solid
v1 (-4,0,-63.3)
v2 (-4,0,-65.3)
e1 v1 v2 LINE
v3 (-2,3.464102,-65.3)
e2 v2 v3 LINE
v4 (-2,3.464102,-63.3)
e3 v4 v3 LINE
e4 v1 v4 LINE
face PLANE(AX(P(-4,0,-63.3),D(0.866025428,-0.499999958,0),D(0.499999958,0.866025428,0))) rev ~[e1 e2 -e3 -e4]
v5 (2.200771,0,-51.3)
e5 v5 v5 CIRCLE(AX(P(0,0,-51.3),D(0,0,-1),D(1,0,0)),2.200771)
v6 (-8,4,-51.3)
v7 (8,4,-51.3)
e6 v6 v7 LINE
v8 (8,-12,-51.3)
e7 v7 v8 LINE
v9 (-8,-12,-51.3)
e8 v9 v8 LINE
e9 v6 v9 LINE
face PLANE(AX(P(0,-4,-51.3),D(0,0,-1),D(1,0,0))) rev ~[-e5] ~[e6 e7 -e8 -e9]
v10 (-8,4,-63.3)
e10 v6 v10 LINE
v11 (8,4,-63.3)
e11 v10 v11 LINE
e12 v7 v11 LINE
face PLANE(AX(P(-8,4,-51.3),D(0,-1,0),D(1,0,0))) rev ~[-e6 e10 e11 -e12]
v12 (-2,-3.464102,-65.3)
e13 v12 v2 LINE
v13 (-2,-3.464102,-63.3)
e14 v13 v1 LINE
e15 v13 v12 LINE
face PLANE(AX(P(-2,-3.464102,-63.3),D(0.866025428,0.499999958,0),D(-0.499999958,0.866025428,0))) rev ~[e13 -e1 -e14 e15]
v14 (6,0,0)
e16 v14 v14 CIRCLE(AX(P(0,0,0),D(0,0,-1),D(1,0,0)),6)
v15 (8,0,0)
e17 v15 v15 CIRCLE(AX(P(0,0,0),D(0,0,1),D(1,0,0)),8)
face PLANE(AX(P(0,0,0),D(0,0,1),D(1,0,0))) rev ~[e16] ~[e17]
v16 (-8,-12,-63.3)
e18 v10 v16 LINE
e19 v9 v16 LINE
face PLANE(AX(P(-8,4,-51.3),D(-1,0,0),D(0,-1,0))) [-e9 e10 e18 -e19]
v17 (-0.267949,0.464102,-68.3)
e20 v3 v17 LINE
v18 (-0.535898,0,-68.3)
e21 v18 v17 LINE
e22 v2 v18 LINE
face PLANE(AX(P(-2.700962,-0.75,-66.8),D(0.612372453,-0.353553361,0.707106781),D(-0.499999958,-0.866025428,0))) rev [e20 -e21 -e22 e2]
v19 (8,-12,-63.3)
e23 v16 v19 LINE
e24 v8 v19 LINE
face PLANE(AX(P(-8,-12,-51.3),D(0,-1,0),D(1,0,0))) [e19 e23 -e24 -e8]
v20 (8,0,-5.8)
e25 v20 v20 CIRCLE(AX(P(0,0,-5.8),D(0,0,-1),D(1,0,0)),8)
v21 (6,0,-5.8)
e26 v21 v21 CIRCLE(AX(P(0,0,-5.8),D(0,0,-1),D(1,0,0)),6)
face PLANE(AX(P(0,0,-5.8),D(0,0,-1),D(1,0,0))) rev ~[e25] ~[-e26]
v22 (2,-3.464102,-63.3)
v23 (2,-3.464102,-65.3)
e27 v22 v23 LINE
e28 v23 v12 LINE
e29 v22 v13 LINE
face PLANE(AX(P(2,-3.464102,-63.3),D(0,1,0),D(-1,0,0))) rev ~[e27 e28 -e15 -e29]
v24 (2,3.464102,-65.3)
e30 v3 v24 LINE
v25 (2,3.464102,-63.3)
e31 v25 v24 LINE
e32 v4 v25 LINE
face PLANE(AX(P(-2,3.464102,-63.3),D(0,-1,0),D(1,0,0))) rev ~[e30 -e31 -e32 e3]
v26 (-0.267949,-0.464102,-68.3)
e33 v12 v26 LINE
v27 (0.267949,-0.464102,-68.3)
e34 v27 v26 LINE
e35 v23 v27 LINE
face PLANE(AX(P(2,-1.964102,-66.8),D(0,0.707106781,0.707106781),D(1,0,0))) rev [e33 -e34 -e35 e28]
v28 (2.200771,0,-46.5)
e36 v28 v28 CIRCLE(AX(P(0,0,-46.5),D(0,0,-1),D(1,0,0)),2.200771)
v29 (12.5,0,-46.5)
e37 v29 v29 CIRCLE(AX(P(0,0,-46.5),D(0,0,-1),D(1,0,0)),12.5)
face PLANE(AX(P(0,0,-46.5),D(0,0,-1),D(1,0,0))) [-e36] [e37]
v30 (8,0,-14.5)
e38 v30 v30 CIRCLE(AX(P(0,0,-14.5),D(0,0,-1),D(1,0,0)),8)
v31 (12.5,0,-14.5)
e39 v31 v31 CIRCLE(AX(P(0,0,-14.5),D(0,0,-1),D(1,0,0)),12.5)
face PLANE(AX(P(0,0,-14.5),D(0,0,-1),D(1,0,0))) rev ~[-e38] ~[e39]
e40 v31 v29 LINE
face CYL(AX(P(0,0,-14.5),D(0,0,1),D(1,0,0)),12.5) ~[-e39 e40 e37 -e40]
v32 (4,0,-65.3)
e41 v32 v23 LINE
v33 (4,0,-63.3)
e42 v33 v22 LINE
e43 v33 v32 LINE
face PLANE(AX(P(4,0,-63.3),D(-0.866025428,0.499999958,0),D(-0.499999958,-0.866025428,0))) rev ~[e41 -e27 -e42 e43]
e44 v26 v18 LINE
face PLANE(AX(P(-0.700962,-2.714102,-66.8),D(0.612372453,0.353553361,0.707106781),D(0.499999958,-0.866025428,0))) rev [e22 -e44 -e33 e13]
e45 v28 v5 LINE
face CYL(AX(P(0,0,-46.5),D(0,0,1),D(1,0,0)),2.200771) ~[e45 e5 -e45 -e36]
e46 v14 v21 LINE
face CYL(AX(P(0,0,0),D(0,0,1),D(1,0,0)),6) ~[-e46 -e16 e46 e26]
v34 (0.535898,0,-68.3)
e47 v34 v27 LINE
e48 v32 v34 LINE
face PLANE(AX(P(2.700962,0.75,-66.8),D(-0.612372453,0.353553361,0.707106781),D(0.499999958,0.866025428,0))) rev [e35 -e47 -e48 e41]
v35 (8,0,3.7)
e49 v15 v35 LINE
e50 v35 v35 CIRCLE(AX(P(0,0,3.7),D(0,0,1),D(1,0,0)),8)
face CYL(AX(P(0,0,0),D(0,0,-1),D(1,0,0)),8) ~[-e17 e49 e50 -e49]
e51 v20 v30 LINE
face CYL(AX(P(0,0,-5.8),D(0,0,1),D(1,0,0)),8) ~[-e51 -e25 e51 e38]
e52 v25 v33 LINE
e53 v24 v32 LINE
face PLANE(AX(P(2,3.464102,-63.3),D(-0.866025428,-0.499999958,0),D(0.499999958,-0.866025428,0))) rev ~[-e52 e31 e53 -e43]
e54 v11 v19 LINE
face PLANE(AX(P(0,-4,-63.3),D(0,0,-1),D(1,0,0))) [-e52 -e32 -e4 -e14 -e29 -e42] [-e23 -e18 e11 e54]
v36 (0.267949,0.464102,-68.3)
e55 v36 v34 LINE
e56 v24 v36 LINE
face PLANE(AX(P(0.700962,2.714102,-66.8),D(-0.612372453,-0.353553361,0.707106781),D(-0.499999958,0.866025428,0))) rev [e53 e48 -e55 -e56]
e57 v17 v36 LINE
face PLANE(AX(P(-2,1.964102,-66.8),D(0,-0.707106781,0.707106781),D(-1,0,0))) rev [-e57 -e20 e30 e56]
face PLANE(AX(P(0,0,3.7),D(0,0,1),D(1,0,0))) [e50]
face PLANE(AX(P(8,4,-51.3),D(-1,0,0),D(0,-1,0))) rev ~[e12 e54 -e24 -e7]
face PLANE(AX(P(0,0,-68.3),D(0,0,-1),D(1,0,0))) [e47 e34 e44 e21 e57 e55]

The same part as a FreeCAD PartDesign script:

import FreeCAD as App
import Part
import Sketcher
from FreeCAD import Vector
Q = App.Units.Quantity


def edges_at(feature, points):
    """Names of the edges that pass closest to the given points."""
    edges = feature.Shape.Edges
    near = lambda p: min(range(len(edges)), key=lambda i: edges[i].distToShape(Part.Vertex(*p))[0])
    return sorted({f"Edge{near(p) + 1}" for p in points})


def add_polygon(sketch, points):
    """Adds a closed chain of lines whose ends are joined by coincident constraints."""
    first, n = sketch.GeometryCount, len(points)
    for a, b in zip(points, points[1:] + points[:1]):
        sketch.addGeometry(Part.LineSegment(App.Vector(*a, 0), App.Vector(*b, 0)), False)
    for i in range(n):
        sketch.addConstraint(Sketcher.Constraint("Coincident", first + i, 2, first + (i + 1) % n, 1))

doc = App.newDocument("Part")
body = doc.addObject("PartDesign::Body", "Body")

# Sketch on XY plane
sketch1 = doc.addObject("Sketcher::SketchObject", "Sketch")
body.addObject(sketch1)
sketch1.AttachmentSupport = (doc.XY_Plane, [""])
sketch1.MapMode = "FlatFace"
sketch1.addGeometry(Part.Circle(Vector(0, 0, 0), Vector(0, 0, 1), 8), False)
sketch1.addConstraint([
    Sketcher.Constraint("Coincident", 0, 3, -1, 1),
    Sketcher.Constraint("Diameter", 0, 16.0),
])
pad1 = doc.addObject("PartDesign::Pad", "Pad")
body.addObject(pad1)
pad1.Profile = sketch1
pad1.Length = 3.7

# Sketch on XY plane
sketch2 = doc.addObject("Sketcher::SketchObject", "Sketch001")
body.addObject(sketch2)
sketch2.AttachmentSupport = (doc.XY_Plane, [""])
sketch2.MapMode = "FlatFace"
sketch2.addGeometry(Part.Circle(Vector(0, 0, 0), Vector(0, 0, 1), 6), False)
sketch2.addConstraint([
    Sketcher.Constraint("Coincident", 0, 3, -1, 1),
    Sketcher.Constraint("Diameter", 0, 12.0),
])
pad2 = doc.addObject("PartDesign::Pad", "Pad001")
body.addObject(pad2)
pad2.Profile = sketch2
pad2.Length = 5.8
pad2.Reversed = True

# Sketch on XY plane
sketch3 = doc.addObject("Sketcher::SketchObject", "Sketch002")
body.addObject(sketch3)
sketch3.AttachmentSupport = (doc.XY_Plane, [""])
sketch3.MapMode = "FlatFace"
sketch3.AttachmentOffset = App.Placement(Vector(0, 0, -5.8), App.Rotation())
sketch3.addGeometry(Part.Circle(Vector(0, 0, 0), Vector(0, 0, 1), 8), False)
sketch3.addConstraint([
    Sketcher.Constraint("Coincident", 0, 3, -1, 1),
    Sketcher.Constraint("Diameter", 0, 16.0),
])
pad3 = doc.addObject("PartDesign::Pad", "Pad002")
body.addObject(pad3)
pad3.Profile = sketch3
pad3.Length = 8.7
pad3.Reversed = True

# Sketch on XY plane
sketch4 = doc.addObject("Sketcher::SketchObject", "Sketch003")
body.addObject(sketch4)
sketch4.AttachmentSupport = (doc.XY_Plane, [""])
sketch4.MapMode = "FlatFace"
sketch4.AttachmentOffset = App.Placement(Vector(0, 0, -14.5), App.Rotation())
sketch4.addGeometry(Part.Circle(Vector(0, 0, 0), Vector(0, 0, 1), 12), False)
sketch4.addConstraint([
    Sketcher.Constraint("Coincident", 0, 3, -1, 1),
    Sketcher.Constraint("Diameter", 0, 25.0),
])
pad4 = doc.addObject("PartDesign::Pad", "Pad003")
body.addObject(pad4)
pad4.Profile = sketch4
pad4.Length = 32
pad4.Reversed = True

# Sketch on XY plane
sketch5 = doc.addObject("Sketcher::SketchObject", "Sketch004")
body.addObject(sketch5)
sketch5.AttachmentSupport = (doc.XY_Plane, [""])
sketch5.MapMode = "FlatFace"
sketch5.AttachmentOffset = App.Placement(Vector(0, 0, -46.5), App.Rotation())
sketch5.addGeometry(Part.Circle(Vector(0, 0, 0), Vector(0, 0, 1), 2.2), False)
sketch5.addConstraint([
    Sketcher.Constraint("Coincident", 0, 3, -1, 1),
    Sketcher.Constraint("Diameter", 0, 4.401542),
])
pad5 = doc.addObject("PartDesign::Pad", "Pad004")
body.addObject(pad5)
pad5.Profile = sketch5
pad5.Length = 4.8
pad5.Reversed = True

# Sketch on XY plane
sketch6 = doc.addObject("Sketcher::SketchObject", "Sketch005")
body.addObject(sketch6)
sketch6.AttachmentSupport = (doc.XY_Plane, [""])
sketch6.MapMode = "FlatFace"
sketch6.AttachmentOffset = App.Placement(Vector(0, 0, -51.3), App.Rotation())
add_polygon(sketch6, [(-8, -12), (-8, 4), (8, 4), (8, -12)])  # lines 0-3
sketch6.addConstraint([
    Sketcher.Constraint("Vertical", 0),
    Sketcher.Constraint("Horizontal", 1),
    Sketcher.Constraint("Vertical", 2),
    Sketcher.Constraint("Horizontal", 3),
    Sketcher.Constraint("Equal", 3, 0),
    Sketcher.Constraint("DistanceX", 1, 1, 1, 2, 16.0),
    Sketcher.Constraint("DistanceX", 0, 2, -1, 1, 8.0),
    Sketcher.Constraint("DistanceY", -1, 1, 0, 2, 4.0),
])
pad6 = doc.addObject("PartDesign::Pad", "Pad005")
body.addObject(pad6)
pad6.Profile = sketch6
pad6.Length = 12
pad6.Reversed = True

# Sketch on XY plane
sketch7 = doc.addObject("Sketcher::SketchObject", "Sketch006")
body.addObject(sketch7)
sketch7.AttachmentSupport = (doc.XY_Plane, [""])
sketch7.MapMode = "FlatFace"
sketch7.AttachmentOffset = App.Placement(Vector(0, 0, -63.3), App.Rotation())
add_polygon(sketch7, [(2, -3.5), (-2, -3.5), (-4, 0), (-2, 3.5), (2, 3.5), (4, 0)])  # lines 0-5
sketch7.addConstraint([
    Sketcher.Constraint("Horizontal", 0),
    Sketcher.Constraint("Horizontal", 3),
    Sketcher.Constraint("Symmetric", 0, 2, 3, 2, -1, 1),
    Sketcher.Constraint("Symmetric", 1, 2, 4, 2, -1, 1),
    Sketcher.Constraint("PointOnObject", 1, 2, -1),
    Sketcher.Constraint("Parallel", 2, 5),
    Sketcher.Constraint("Vertical", 0, 2, 2, 2),
    Sketcher.Constraint("DistanceX", 0, 2, 0, 1, 4.0),
    Sketcher.Constraint("Angle", 1, Q("119.999997 deg")),
    Sketcher.Constraint("Distance", 1, 4.0),
])
pad7 = doc.addObject("PartDesign::Pad", "Pad006")
body.addObject(pad7)
pad7.Profile = sketch7
pad7.Length = 5
pad7.Reversed = True
doc.recompute()

chamfer = doc.addObject("PartDesign::Chamfer", "Chamfer")
body.addObject(chamfer)
chamfer.Base = (pad7, edges_at(pad7, [
    (0, -3.464, -68.3),
    (-3, -1.732, -68.3),
    (-3, 1.732, -68.3),
    (0, 3.464, -68.3),
    (3, 1.732, -68.3),
    (3, -1.732, -68.3),
]))
chamfer.Size = 3

doc.recompute()
